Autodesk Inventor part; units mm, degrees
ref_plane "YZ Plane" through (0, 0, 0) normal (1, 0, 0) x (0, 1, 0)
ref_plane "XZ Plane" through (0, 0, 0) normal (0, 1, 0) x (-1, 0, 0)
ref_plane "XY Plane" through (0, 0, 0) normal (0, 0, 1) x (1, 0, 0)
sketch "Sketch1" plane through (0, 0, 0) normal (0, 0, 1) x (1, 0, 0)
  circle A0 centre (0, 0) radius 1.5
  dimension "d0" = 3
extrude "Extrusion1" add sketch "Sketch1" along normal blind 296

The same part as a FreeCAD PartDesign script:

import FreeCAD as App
import Part
import Sketcher

doc = App.newDocument("Part")
body = doc.addObject("PartDesign::Body", "Body")

# Sketch on XY plane
sketch1 = doc.addObject("Sketcher::SketchObject", "Sketch")
body.addObject(sketch1)
sketch1.AttachmentSupport = (doc.XY_Plane, [""])
sketch1.MapMode = "FlatFace"
sketch1.addGeometry(Part.Circle(App.Vector(0, 0, 0), App.Vector(0, 0, 1), 1.5), False)
sketch1.addConstraint(Sketcher.Constraint("Coincident", 0, 3, -1, 1))
sketch1.addConstraint(Sketcher.Constraint("Diameter", 0, 3.0))
pad1 = doc.addObject("PartDesign::Pad", "Pad")
body.addObject(pad1)
pad1.Profile = sketch1
pad1.Length = 296

doc.recompute()
